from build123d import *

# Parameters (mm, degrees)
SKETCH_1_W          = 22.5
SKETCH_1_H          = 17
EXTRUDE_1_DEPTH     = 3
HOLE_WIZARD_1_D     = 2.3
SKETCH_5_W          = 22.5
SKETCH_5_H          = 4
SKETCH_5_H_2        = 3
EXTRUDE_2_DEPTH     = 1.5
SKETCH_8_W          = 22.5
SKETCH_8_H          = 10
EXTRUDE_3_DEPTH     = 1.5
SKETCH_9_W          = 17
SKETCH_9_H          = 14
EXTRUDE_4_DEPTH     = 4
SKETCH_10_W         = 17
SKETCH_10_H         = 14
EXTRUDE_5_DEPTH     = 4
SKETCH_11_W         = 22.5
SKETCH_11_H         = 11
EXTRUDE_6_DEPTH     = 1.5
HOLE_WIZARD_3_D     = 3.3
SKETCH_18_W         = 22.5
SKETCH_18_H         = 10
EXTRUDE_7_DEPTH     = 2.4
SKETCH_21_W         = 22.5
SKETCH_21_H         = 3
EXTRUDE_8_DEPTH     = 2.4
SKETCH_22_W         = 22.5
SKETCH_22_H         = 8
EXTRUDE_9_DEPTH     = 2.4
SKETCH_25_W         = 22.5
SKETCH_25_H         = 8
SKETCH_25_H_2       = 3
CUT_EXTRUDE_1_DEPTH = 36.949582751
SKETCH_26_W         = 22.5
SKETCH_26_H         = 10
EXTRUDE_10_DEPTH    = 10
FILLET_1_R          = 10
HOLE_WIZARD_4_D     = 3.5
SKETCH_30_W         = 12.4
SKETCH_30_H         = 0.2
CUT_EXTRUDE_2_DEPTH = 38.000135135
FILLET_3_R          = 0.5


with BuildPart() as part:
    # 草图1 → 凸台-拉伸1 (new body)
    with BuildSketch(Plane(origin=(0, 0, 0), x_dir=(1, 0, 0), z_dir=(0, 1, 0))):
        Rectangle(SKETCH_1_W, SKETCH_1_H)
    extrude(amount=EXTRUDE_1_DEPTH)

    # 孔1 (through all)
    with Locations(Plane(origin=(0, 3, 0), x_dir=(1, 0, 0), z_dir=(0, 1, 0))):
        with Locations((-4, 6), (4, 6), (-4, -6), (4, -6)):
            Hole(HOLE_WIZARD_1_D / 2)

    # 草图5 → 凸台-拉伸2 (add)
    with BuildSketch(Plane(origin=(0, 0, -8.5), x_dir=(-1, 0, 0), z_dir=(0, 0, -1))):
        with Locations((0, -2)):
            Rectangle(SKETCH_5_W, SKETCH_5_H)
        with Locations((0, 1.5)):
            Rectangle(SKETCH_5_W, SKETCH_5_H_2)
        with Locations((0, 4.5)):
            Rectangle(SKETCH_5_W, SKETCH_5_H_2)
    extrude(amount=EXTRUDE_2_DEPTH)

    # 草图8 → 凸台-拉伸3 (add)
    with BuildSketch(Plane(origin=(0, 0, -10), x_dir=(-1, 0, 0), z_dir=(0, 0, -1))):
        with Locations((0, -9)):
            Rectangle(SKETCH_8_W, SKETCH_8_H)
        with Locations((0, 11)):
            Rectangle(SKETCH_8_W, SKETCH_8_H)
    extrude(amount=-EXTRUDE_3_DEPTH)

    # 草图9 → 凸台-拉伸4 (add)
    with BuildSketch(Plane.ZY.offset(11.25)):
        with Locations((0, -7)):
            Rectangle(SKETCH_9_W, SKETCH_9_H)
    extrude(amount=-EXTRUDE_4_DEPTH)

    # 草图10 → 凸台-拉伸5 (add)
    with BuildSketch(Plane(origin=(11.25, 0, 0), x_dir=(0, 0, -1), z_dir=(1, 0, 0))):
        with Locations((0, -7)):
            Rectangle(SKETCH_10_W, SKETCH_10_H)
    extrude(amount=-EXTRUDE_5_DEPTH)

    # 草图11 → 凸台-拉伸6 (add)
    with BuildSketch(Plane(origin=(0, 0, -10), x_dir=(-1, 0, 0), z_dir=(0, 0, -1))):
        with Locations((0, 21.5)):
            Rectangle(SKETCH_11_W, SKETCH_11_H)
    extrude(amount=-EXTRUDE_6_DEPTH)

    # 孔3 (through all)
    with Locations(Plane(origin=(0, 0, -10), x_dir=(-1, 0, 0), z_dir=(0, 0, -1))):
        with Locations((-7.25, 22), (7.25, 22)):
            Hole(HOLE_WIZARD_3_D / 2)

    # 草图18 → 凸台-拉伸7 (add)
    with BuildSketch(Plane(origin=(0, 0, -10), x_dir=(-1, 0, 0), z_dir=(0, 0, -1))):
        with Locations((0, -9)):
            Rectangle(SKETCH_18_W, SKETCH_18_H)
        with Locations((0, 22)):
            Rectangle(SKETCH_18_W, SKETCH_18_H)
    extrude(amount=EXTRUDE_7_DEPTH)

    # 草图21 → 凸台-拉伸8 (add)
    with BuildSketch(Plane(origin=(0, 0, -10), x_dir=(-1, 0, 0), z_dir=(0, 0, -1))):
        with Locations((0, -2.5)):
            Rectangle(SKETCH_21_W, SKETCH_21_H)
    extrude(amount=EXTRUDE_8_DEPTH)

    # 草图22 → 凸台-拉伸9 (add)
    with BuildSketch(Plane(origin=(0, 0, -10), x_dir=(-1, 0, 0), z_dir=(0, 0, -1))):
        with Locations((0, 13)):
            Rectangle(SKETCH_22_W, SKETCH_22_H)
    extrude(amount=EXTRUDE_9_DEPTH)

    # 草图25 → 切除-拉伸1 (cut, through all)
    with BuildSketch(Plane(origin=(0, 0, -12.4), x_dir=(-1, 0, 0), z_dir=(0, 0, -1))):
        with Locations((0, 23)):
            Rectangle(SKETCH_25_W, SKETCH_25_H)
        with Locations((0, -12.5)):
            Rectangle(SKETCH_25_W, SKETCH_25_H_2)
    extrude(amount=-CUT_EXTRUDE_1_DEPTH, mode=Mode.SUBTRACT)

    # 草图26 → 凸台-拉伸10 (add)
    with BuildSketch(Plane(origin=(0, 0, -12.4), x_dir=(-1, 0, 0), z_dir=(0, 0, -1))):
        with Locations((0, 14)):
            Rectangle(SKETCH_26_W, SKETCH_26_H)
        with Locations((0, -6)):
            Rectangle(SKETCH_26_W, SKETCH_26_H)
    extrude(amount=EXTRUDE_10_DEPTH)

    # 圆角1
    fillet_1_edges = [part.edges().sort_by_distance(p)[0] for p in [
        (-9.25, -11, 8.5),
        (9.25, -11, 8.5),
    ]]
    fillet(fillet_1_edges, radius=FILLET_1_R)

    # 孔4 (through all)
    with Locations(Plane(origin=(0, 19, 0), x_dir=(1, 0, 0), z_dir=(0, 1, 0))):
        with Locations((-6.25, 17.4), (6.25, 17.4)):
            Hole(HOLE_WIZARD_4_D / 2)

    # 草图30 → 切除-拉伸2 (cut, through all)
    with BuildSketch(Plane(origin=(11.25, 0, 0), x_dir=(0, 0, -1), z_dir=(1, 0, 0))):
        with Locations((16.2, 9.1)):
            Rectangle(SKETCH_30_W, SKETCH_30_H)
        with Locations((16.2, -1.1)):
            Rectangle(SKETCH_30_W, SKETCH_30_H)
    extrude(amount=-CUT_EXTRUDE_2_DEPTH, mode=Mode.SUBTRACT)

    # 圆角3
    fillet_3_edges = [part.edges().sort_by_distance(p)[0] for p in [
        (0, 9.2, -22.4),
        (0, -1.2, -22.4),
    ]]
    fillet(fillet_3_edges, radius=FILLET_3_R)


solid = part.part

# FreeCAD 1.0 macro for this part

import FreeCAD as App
import Part
import Sketcher
from FreeCAD import Vector
Q = App.Units.Quantity


def edges_at(feature, points):
    """Names of the edges that pass closest to the given points."""
    edges = feature.Shape.Edges
    near = lambda p: min(range(len(edges)), key=lambda i: edges[i].distToShape(Part.Vertex(*p))[0])
    return sorted({f"Edge{near(p) + 1}" for p in points})


def add_polygon(sketch, points):
    """Adds a closed chain of lines whose ends are joined by coincident constraints."""
    first, n = sketch.GeometryCount, len(points)
    for a, b in zip(points, points[1:] + points[:1]):
        sketch.addGeometry(Part.LineSegment(App.Vector(*a, 0), App.Vector(*b, 0)), False)
    for i in range(n):
        sketch.addConstraint(Sketcher.Constraint("Coincident", first + i, 2, first + (i + 1) % n, 1))

doc = App.newDocument("Part")
body = doc.addObject("PartDesign::Body", "Body")

# Sketch on XZ plane
sketch1 = body.newObject("Sketcher::SketchObject", "Sketch")
sketch1.AttachmentSupport = (doc.getObject("XZ_Plane"), [""])
sketch1.MapMode = "FlatFace"
add_polygon(sketch1, [(-11, -8), (-11, 8), (11, 8), (11, -8)])  # lines 0-3
sketch1.addConstraint([
    Sketcher.Constraint("Vertical", 0),
    Sketcher.Constraint("Horizontal", 1),
    Sketcher.Constraint("Vertical", 2),
    Sketcher.Constraint("Horizontal", 3),
    Sketcher.Constraint("Symmetric", 0, 2, 2, 2, -1, 1),
    Sketcher.Constraint("DistanceY", 0, 1, 0, 2, Q("17 mm")),
    Sketcher.Constraint("DistanceX", 1, 1, 1, 2, Q("22.5 mm")),
])
pad1 = body.newObject("PartDesign::Pad", "Pad")
pad1.Profile = sketch1
pad1.Length = 3
pad1.Reversed = True

# Sketch on XZ plane
sketch2 = body.newObject("Sketcher::SketchObject", "Sketch001")
sketch2.AttachmentSupport = (doc.getObject("XZ_Plane"), [""])
sketch2.MapMode = "FlatFace"
sketch2.AttachmentOffset = App.Placement(Vector(0, 0, -3), App.Rotation())
sketch2.addGeometry([
    Part.Circle(Vector(-4, -6, 0), Vector(0, 0, 1), 1.1),
    Part.Circle(Vector(4, -6, 0), Vector(0, 0, 1), 1.1),
    Part.Circle(Vector(-4, 6, 0), Vector(0, 0, 1), 1.1),
    Part.Circle(Vector(4, 6, 0), Vector(0, 0, 1), 1.1),
], False)
sketch2.addConstraint([
    Sketcher.Constraint("Equal", 0, 1),
    Sketcher.Constraint("Equal", 1, 2),
    Sketcher.Constraint("Equal", 2, 3),
    Sketcher.Constraint("Symmetric", 1, 3, 2, 3, -1, 1),
    Sketcher.Constraint("Symmetric", 0, 3, 3, 3, -1, 1),
    Sketcher.Constraint("Symmetric", 0, 3, 1, 3, -2),
    Sketcher.Constraint("Diameter", 0, Q("2.3 mm")),
    Sketcher.Constraint("DistanceX", 0, 3, -1, 1, Q("4 mm")),
    Sketcher.Constraint("DistanceY", 0, 3, -1, 1, Q("6 mm")),
])
doc.recompute()
hole = body.newObject("PartDesign::Hole", "Hole")
hole.Profile = sketch2
hole.ThreadType = "None"
hole.Diameter = 2.3
hole.DepthType = "ThroughAll"
hole.Reversed = True

# Sketch on XY plane
sketch3 = body.newObject("Sketcher::SketchObject", "Sketch002")
sketch3.AttachmentSupport = (doc.getObject("XY_Plane"), [""])
sketch3.MapMode = "FlatFace"
sketch3.AttachmentOffset = App.Placement(Vector(0, 0, -8.5), App.Rotation())
add_polygon(sketch3, [(11, -4), (-11, -4), (-11, 6), (11, 6)])  # lines 0-3
sketch3.addConstraint([
    Sketcher.Constraint("Horizontal", 0),
    Sketcher.Constraint("Vertical", 1),
    Sketcher.Constraint("Horizontal", 2),
    Sketcher.Constraint("Vertical", 3),
    Sketcher.Constraint("DistanceY", 1, 1, 1, 2, Q("10 mm")),
    Sketcher.Constraint("DistanceX", 0, 2, 0, 1, Q("22.5 mm")),
    Sketcher.Constraint("DistanceY", 0, 2, -1, 1, Q("4 mm")),
    Sketcher.Constraint("DistanceX", 0, 2, -1, 1, Q("11.25 mm")),
])
pad2 = body.newObject("PartDesign::Pad", "Pad001")
pad2.Profile = sketch3
pad2.Length = 1.5
pad2.Reversed = True

# Sketch on XY plane
sketch4 = body.newObject("Sketcher::SketchObject", "Sketch003")
sketch4.AttachmentSupport = (doc.getObject("XY_Plane"), [""])
sketch4.MapMode = "FlatFace"
sketch4.AttachmentOffset = App.Placement(Vector(0, 0, -10), App.Rotation())
add_polygon(sketch4, [(11, -4), (11, -14), (-11, -14), (-11, -4)])  # lines 0-3
add_polygon(sketch4, [(11, 16), (11, 6), (-11, 6), (-11, 16)])  # lines 4-7
sketch4.addConstraint([
    Sketcher.Constraint("Vertical", 0),
    Sketcher.Constraint("Horizontal", 1),
    Sketcher.Constraint("Vertical", 2),
    Sketcher.Constraint("Horizontal", 3),
    Sketcher.Constraint("Vertical", 4),
    Sketcher.Constraint("Horizontal", 5),
    Sketcher.Constraint("Vertical", 6),
    Sketcher.Constraint("Horizontal", 7),
    Sketcher.Constraint("Vertical", 3, 2, 4, 2),
    Sketcher.Constraint("Vertical", 2, 2, 5, 2),
    Sketcher.Constraint("Equal", 2, 4),
    Sketcher.Constraint("DistanceY", 0, 2, 0, 1, Q("10 mm")),
    Sketcher.Constraint("DistanceX", 1, 2, 1, 1, Q("22.5 mm")),
    Sketcher.Constraint("DistanceY", 0, 2, -1, 1, Q("14 mm")),
    Sketcher.Constraint("DistanceY", -1, 1, 4, 2, Q("6 mm")),
    Sketcher.Constraint("DistanceX", -1, 1, 0, 2, Q("11.25 mm")),
])
pad3 = body.newObject("PartDesign::Pad", "Pad002")
pad3.Profile = sketch4
pad3.Length = 1.5

# Sketch on YZ plane
sketch5 = body.newObject("Sketcher::SketchObject", "Sketch004")
sketch5.AttachmentSupport = (doc.getObject("YZ_Plane"), [""])
sketch5.MapMode = "FlatFace"
sketch5.AttachmentOffset = App.Placement(Vector(0, 0, -11.25), App.Rotation())
add_polygon(sketch5, [(0, -8), (-14, -8), (-14, 8), (0, 8)])  # lines 0-3
sketch5.addConstraint([
    Sketcher.Constraint("Horizontal", 0),
    Sketcher.Constraint("Vertical", 1),
    Sketcher.Constraint("Horizontal", 2),
    Sketcher.Constraint("Vertical", 3),
    Sketcher.Constraint("Symmetric", 2, 2, 3, 2, -1, 1),
    Sketcher.Constraint("DistanceX", 0, 2, 0, 1, Q("14 mm")),
    Sketcher.Constraint("DistanceY", 1, 1, 1, 2, Q("17 mm")),
])
pad4 = body.newObject("PartDesign::Pad", "Pad003")
pad4.Profile = sketch5
pad4.Length = 4

# Sketch on YZ plane
sketch6 = body.newObject("Sketcher::SketchObject", "Sketch005")
sketch6.AttachmentSupport = (doc.getObject("YZ_Plane"), [""])
sketch6.MapMode = "FlatFace"
sketch6.AttachmentOffset = App.Placement(Vector(0, 0, 11.25), App.Rotation())
add_polygon(sketch6, [(0, 8), (-14, 8), (-14, -8), (0, -8)])  # lines 0-3
sketch6.addConstraint([
    Sketcher.Constraint("Horizontal", 0),
    Sketcher.Constraint("Vertical", 1),
    Sketcher.Constraint("Horizontal", 2),
    Sketcher.Constraint("Vertical", 3),
    Sketcher.Constraint("Symmetric", 2, 2, 3, 2, -1, 1),
    Sketcher.Constraint("DistanceX", 0, 2, 0, 1, Q("14 mm")),
    Sketcher.Constraint("DistanceY", 1, 2, 1, 1, Q("17 mm")),
])
pad5 = body.newObject("PartDesign::Pad", "Pad004")
pad5.Profile = sketch6
pad5.Length = 4
pad5.Reversed = True

# Sketch on XY plane
sketch7 = body.newObject("Sketcher::SketchObject", "Sketch006")
sketch7.AttachmentSupport = (doc.getObject("XY_Plane"), [""])
sketch7.MapMode = "FlatFace"
sketch7.AttachmentOffset = App.Placement(Vector(0, 0, -10), App.Rotation())
add_polygon(sketch7, [(11, 27), (11, 16), (-11, 16), (-11, 27)])  # lines 0-3
sketch7.addConstraint([
    Sketcher.Constraint("Vertical", 0),
    Sketcher.Constraint("Horizontal", 1),
    Sketcher.Constraint("Vertical", 2),
    Sketcher.Constraint("Horizontal", 3),
    Sketcher.Constraint("DistanceY", 0, 2, 0, 1, Q("11 mm")),
    Sketcher.Constraint("DistanceX", 1, 2, 1, 1, Q("22.5 mm")),
    Sketcher.Constraint("DistanceY", -1, 1, 0, 2, Q("16 mm")),
    Sketcher.Constraint("DistanceX", -1, 1, 0, 2, Q("11.25 mm")),
])
pad6 = body.newObject("PartDesign::Pad", "Pad005")
pad6.Profile = sketch7
pad6.Length = 1.5

# Sketch on XY plane
sketch8 = body.newObject("Sketcher::SketchObject", "Sketch007")
sketch8.AttachmentSupport = (doc.getObject("XY_Plane"), [""])
sketch8.MapMode = "FlatFace"
sketch8.AttachmentOffset = App.Placement(Vector(0, 0, -10), App.Rotation())
sketch8.addGeometry([
    Part.Circle(Vector(7.2, 22, 0), Vector(0, 0, 1), 1.6),
    Part.Circle(Vector(-7.2, 22, 0), Vector(0, 0, 1), 1.6),
], False)
sketch8.addConstraint([
    Sketcher.Constraint("Equal", 0, 1),
    Sketcher.Constraint("Symmetric", 0, 3, 1, 3, -2),
    Sketcher.Constraint("Diameter", 0, Q("3.3 mm")),
    Sketcher.Constraint("DistanceY", -1, 1, 0, 3, Q("22 mm")),
    Sketcher.Constraint("DistanceX", 1, 3, 0, 3, Q("14.5 mm")),
])
doc.recompute()
hole2 = body.newObject("PartDesign::Hole", "Hole001")
hole2.Profile = sketch8
hole2.ThreadType = "None"
hole2.Diameter = 3.3
hole2.DepthType = "ThroughAll"
hole2.Reversed = True

# Sketch on XY plane
sketch9 = body.newObject("Sketcher::SketchObject", "Sketch008")
sketch9.AttachmentSupport = (doc.getObject("XY_Plane"), [""])
sketch9.MapMode = "FlatFace"
sketch9.AttachmentOffset = App.Placement(Vector(0, 0, -10), App.Rotation())
add_polygon(sketch9, [(11, -4), (11, -14), (-11, -14), (-11, -4)])  # lines 0-3
add_polygon(sketch9, [(11, 27), (11, 17), (-11, 17), (-11, 27)])  # lines 4-7
sketch9.addConstraint([
    Sketcher.Constraint("Vertical", 0),
    Sketcher.Constraint("Horizontal", 1),
    Sketcher.Constraint("Vertical", 2),
    Sketcher.Constraint("Horizontal", 3),
    Sketcher.Constraint("Vertical", 4),
    Sketcher.Constraint("Horizontal", 5),
    Sketcher.Constraint("Vertical", 6),
    Sketcher.Constraint("Horizontal", 7),
    Sketcher.Constraint("Vertical", 3, 2, 4, 2),
    Sketcher.Constraint("Vertical", 2, 2, 5, 2),
    Sketcher.Constraint("Equal", 2, 4),
    Sketcher.Constraint("DistanceY", 0, 2, 0, 1, Q("10 mm")),
    Sketcher.Constraint("DistanceX", 1, 2, 1, 1, Q("22.5 mm")),
    Sketcher.Constraint("DistanceY", 0, 2, -1, 1, Q("14 mm")),
    Sketcher.Constraint("DistanceY", -1, 1, 4, 2, Q("17 mm")),
    Sketcher.Constraint("DistanceX", -1, 1, 0, 2, Q("11.25 mm")),
])
pad7 = body.newObject("PartDesign::Pad", "Pad006")
pad7.Profile = sketch9
pad7.Length = 2.4
pad7.Reversed = True

# Sketch on XY plane
sketch10 = body.newObject("Sketcher::SketchObject", "Sketch009")
sketch10.AttachmentSupport = (doc.getObject("XY_Plane"), [""])
sketch10.MapMode = "FlatFace"
sketch10.AttachmentOffset = App.Placement(Vector(0, 0, -10), App.Rotation())
add_polygon(sketch10, [(11.2, -1), (11.2, -4), (-11.2, -4), (-11.2, -1)])  # lines 0-3
sketch10.addConstraint([
    Sketcher.Constraint("Vertical", 0),
    Sketcher.Constraint("Horizontal", 1),
    Sketcher.Constraint("Vertical", 2),
    Sketcher.Constraint("Horizontal", 3),
    Sketcher.Constraint("DistanceY", 0, 2, 0, 1, Q("3 mm")),
    Sketcher.Constraint("DistanceX", 1, 2, 1, 1, Q("22.5 mm")),
    Sketcher.Constraint("DistanceY", 0, 2, -1, 1, Q("4 mm")),
    Sketcher.Constraint("DistanceX", -1, 1, 0, 2, Q("11.25 mm")),
])
pad8 = body.newObject("PartDesign::Pad", "Pad007")
pad8.Profile = sketch10
pad8.Length = 2.4
pad8.Reversed = True

# Sketch on XY plane
sketch11 = body.newObject("Sketcher::SketchObject", "Sketch010")
sketch11.AttachmentSupport = (doc.getObject("XY_Plane"), [""])
sketch11.MapMode = "FlatFace"
sketch11.AttachmentOffset = App.Placement(Vector(0, 0, -10), App.Rotation())
add_polygon(sketch11, [(11, 17), (11, 9), (-11, 9), (-11, 17)])  # lines 0-3
sketch11.addConstraint([
    Sketcher.Constraint("Vertical", 0),
    Sketcher.Constraint("Horizontal", 1),
    Sketcher.Constraint("Vertical", 2),
    Sketcher.Constraint("Horizontal", 3),
    Sketcher.Constraint("DistanceY", 0, 2, 0, 1, Q("8 mm")),
    Sketcher.Constraint("DistanceX", 1, 2, 1, 1, Q("22.5 mm")),
    Sketcher.Constraint("DistanceY", -1, 1, 0, 2, Q("9 mm")),
    Sketcher.Constraint("DistanceX", -1, 1, 0, 2, Q("11.25 mm")),
])
pad9 = body.newObject("PartDesign::Pad", "Pad008")
pad9.Profile = sketch11
pad9.Length = 2.4
pad9.Reversed = True

# Sketch on XY plane
sketch12 = body.newObject("Sketcher::SketchObject", "Sketch011")
sketch12.AttachmentSupport = (doc.getObject("XY_Plane"), [""])
sketch12.MapMode = "FlatFace"
sketch12.AttachmentOffset = App.Placement(Vector(0, 0, -12.4), App.Rotation())
add_polygon(sketch12, [(11.2, 27), (11.2, 19), (-11.2, 19), (-11.2, 27)])  # lines 0-3
add_polygon(sketch12, [(11.2, -11), (11.2, -14), (-11.2, -14), (-11.2, -11)])  # lines 4-7
sketch12.addConstraint([
    Sketcher.Constraint("Vertical", 0),
    Sketcher.Constraint("Horizontal", 1),
    Sketcher.Constraint("Vertical", 2),
    Sketcher.Constraint("Horizontal", 3),
    Sketcher.Constraint("Vertical", 4),
    Sketcher.Constraint("Horizontal", 5),
    Sketcher.Constraint("Vertical", 6),
    Sketcher.Constraint("Horizontal", 7),
    Sketcher.Constraint("Vertical", 3, 2, 4, 2),
    Sketcher.Constraint("Vertical", 2, 2, 5, 2),
    Sketcher.Constraint("DistanceY", 0, 2, 0, 1, Q("8 mm")),
    Sketcher.Constraint("DistanceY", 4, 2, 4, 1, Q("3 mm")),
    Sketcher.Constraint("DistanceX", 1, 2, 1, 1, Q("22.5 mm")),
    Sketcher.Constraint("DistanceY", -1, 1, 0, 2, Q("19 mm")),
    Sketcher.Constraint("DistanceY", 4, 2, -1, 1, Q("14 mm")),
    Sketcher.Constraint("DistanceX", -1, 1, 0, 2, Q("11.25 mm")),
])
pocket1 = body.newObject("PartDesign::Pocket", "Pocket")
pocket1.Profile = sketch12
pocket1.Type = "ThroughAll"
pocket1.Reversed = True

# Sketch on XY plane
sketch13 = body.newObject("Sketcher::SketchObject", "Sketch012")
sketch13.AttachmentSupport = (doc.getObject("XY_Plane"), [""])
sketch13.MapMode = "FlatFace"
sketch13.AttachmentOffset = App.Placement(Vector(0, 0, -12.4), App.Rotation())
add_polygon(sketch13, [(11, 19), (11, 9), (-11, 9), (-11, 19)])  # lines 0-3
add_polygon(sketch13, [(11, -1), (11, -11), (-11, -11), (-11, -1)])  # lines 4-7
sketch13.addConstraint([
    Sketcher.Constraint("Vertical", 0),
    Sketcher.Constraint("Horizontal", 1),
    Sketcher.Constraint("Vertical", 2),
    Sketcher.Constraint("Horizontal", 3),
    Sketcher.Constraint("Vertical", 4),
    Sketcher.Constraint("Horizontal", 5),
    Sketcher.Constraint("Vertical", 6),
    Sketcher.Constraint("Horizontal", 7),
    Sketcher.Constraint("Vertical", 3, 2, 4, 2),
    Sketcher.Constraint("Vertical", 2, 2, 5, 2),
    Sketcher.Constraint("Equal", 2, 4),
    Sketcher.Constraint("DistanceY", 0, 2, 0, 1, Q("10 mm")),
    Sketcher.Constraint("DistanceX", 1, 2, 1, 1, Q("22.5 mm")),
    Sketcher.Constraint("DistanceY", -1, 1, 0, 2, Q("9 mm")),
    Sketcher.Constraint("DistanceY", 4, 2, -1, 1, Q("11 mm")),
    Sketcher.Constraint("DistanceX", -1, 1, 0, 2, Q("11.25 mm")),
])
pad10 = body.newObject("PartDesign::Pad", "Pad009")
pad10.Profile = sketch13
pad10.Length = 10
pad10.Reversed = True
doc.recompute()

fillet = body.newObject("PartDesign::Fillet", "Fillet")
fillet.Base = (pad10, edges_at(pad10, [(-9.25, -11, 8.5), (9.25, -11, 8.5)]))
fillet.Radius = 10

# Sketch on XZ plane
sketch14 = body.newObject("Sketcher::SketchObject", "Sketch013")
sketch14.AttachmentSupport = (doc.getObject("XZ_Plane"), [""])
sketch14.MapMode = "FlatFace"
sketch14.AttachmentOffset = App.Placement(Vector(0, 0, -19), App.Rotation())
sketch14.addGeometry([
    Part.Circle(Vector(-6.2, -17.4, 0), Vector(0, 0, 1), 1.8),
    Part.Circle(Vector(6.2, -17.4, 0), Vector(0, 0, 1), 1.8),
], False)
sketch14.addConstraint([
    Sketcher.Constraint("Equal", 0, 1),
    Sketcher.Constraint("Symmetric", 0, 3, 1, 3, -2),
    Sketcher.Constraint("Diameter", 0, Q("3.5 mm")),
    Sketcher.Constraint("DistanceY", 0, 3, -1, 1, Q("17.4 mm")),
    Sketcher.Constraint("DistanceX", 0, 3, 1, 3, Q("12.5 mm")),
])
doc.recompute()
hole3 = body.newObject("PartDesign::Hole", "Hole002")
hole3.Profile = sketch14
hole3.ThreadType = "None"
hole3.Diameter = 3.5
hole3.DepthType = "ThroughAll"
hole3.Reversed = True

# Sketch on YZ plane
sketch15 = body.newObject("Sketcher::SketchObject", "Sketch014")
sketch15.AttachmentSupport = (doc.getObject("YZ_Plane"), [""])
sketch15.MapMode = "FlatFace"
sketch15.AttachmentOffset = App.Placement(Vector(0, 0, 11.25), App.Rotation())
add_polygon(sketch15, [(9.2, -10), (9, -10), (9, -22.4), (9.2, -22.4)])  # lines 0-3
add_polygon(sketch15, [(-1, -10), (-1.2, -10), (-1.2, -22.4), (-1, -22.4)])  # lines 4-7
sketch15.addConstraint([
    Sketcher.Constraint("Horizontal", 0),
    Sketcher.Constraint("Vertical", 1),
    Sketcher.Constraint("Horizontal", 2),
    Sketcher.Constraint("Vertical", 3),
    Sketcher.Constraint("Horizontal", 4),
    Sketcher.Constraint("Vertical", 5),
    Sketcher.Constraint("Horizontal", 6),
    Sketcher.Constraint("Vertical", 7),
    Sketcher.Constraint("Horizontal", 3, 2, 4, 2),
    Sketcher.Constraint("Horizontal", 2, 2, 5, 2),
    Sketcher.Constraint("Equal", 2, 4),
    Sketcher.Constraint("DistanceX", 0, 2, 0, 1, Q("0.2 mm")),
    Sketcher.Constraint("DistanceY", 1, 2, 1, 1, Q("12.4 mm")),
    Sketcher.Constraint("DistanceX", -1, 1, 0, 2, Q("9 mm")),
    Sketcher.Constraint("DistanceY", 0, 2, -1, 1, Q("10 mm")),
    Sketcher.Constraint("DistanceX", 6, 2, -1, 1, Q("1 mm")),
])
pocket2 = body.newObject("PartDesign::Pocket", "Pocket001")
pocket2.Profile = sketch15
pocket2.Type = "ThroughAll"
doc.recompute()

fillet2 = body.newObject("PartDesign::Fillet", "Fillet001")
fillet2.Base = (pocket2, edges_at(pocket2, [(0, 9.2, -22.4), (0, -1.2, -22.4)]))
fillet2.Radius = 0.5

doc.recompute()
